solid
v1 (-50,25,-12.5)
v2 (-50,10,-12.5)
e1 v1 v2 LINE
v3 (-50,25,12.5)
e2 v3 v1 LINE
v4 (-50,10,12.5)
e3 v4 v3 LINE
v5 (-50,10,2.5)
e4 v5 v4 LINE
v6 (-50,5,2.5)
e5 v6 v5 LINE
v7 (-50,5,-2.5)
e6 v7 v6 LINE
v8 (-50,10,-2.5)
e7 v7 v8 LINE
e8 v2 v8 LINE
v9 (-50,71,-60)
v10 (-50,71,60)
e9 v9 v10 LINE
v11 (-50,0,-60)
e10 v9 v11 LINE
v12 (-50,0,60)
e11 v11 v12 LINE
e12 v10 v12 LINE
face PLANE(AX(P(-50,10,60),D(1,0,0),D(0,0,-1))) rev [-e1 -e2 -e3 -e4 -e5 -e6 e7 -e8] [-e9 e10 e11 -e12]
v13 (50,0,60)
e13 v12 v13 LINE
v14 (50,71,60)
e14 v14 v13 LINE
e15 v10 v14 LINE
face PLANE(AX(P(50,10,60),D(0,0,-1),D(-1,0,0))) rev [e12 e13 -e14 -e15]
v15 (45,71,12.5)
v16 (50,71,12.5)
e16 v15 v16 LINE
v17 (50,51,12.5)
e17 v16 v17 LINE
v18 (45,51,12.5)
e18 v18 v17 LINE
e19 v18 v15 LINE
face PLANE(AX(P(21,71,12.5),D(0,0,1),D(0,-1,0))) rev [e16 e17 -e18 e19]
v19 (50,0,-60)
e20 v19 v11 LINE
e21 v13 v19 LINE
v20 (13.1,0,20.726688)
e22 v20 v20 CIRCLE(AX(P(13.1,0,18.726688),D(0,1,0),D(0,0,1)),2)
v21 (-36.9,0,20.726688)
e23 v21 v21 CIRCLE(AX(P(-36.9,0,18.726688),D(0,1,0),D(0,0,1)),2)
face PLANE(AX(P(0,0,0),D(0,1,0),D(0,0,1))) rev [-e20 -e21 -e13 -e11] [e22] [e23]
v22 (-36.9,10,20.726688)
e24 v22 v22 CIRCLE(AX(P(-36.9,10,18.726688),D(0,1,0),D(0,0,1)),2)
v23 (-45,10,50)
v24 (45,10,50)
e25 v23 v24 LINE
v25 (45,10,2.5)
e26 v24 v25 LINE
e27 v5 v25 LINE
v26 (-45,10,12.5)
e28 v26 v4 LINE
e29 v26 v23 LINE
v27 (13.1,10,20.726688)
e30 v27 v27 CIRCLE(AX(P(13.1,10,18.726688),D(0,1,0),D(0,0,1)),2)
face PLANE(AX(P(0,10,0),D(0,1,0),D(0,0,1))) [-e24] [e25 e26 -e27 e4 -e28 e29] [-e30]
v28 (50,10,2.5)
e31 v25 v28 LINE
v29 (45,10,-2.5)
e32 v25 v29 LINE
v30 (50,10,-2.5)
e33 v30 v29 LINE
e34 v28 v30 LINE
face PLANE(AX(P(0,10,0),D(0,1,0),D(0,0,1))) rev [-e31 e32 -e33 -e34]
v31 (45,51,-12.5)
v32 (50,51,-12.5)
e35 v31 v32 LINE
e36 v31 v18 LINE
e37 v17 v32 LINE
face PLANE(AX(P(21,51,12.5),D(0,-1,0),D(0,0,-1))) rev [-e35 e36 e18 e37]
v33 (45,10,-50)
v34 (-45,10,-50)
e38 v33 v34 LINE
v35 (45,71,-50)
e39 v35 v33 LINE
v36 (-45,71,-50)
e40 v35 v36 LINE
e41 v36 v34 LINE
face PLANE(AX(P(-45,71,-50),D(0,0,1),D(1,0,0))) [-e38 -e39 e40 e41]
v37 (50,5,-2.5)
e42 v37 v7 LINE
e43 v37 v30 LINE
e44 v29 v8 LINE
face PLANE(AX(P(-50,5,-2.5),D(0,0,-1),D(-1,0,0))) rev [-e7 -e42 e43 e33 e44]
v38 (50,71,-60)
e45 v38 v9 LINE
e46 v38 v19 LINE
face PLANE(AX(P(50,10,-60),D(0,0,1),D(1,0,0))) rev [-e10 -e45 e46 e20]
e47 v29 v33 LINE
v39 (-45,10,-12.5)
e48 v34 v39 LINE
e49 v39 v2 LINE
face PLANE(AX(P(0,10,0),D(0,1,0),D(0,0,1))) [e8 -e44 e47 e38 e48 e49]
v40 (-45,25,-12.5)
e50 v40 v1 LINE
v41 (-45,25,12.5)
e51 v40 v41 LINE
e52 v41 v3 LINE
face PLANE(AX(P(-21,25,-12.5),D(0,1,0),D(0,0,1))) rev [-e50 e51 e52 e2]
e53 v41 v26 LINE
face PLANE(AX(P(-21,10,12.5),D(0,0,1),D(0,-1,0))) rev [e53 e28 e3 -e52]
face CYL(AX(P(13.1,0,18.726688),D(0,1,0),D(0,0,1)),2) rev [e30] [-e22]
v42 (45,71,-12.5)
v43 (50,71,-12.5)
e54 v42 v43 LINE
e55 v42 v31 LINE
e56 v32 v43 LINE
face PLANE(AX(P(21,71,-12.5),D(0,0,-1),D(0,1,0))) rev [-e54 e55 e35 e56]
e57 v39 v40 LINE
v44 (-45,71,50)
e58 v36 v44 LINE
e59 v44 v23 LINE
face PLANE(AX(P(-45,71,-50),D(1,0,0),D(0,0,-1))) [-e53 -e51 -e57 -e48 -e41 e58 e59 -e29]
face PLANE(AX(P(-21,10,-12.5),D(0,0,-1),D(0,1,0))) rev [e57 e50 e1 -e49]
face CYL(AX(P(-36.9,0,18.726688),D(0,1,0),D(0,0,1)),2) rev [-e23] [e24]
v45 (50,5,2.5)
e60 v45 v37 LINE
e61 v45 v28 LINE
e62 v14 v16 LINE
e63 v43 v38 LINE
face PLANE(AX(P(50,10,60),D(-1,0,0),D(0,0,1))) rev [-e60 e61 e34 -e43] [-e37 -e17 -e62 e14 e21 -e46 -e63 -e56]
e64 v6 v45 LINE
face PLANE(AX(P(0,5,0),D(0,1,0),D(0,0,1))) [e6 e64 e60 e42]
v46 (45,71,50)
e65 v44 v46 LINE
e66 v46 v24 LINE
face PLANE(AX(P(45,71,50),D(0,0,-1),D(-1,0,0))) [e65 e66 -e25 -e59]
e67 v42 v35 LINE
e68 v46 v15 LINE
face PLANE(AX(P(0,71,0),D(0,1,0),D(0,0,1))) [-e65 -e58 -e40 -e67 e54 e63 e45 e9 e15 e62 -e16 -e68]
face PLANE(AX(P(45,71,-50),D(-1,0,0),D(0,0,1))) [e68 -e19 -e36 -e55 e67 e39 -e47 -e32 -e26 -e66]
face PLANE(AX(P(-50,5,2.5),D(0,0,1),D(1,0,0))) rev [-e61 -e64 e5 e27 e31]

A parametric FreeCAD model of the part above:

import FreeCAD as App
import Part
import Sketcher
from FreeCAD import Vector

doc = App.newDocument("Part")
body = doc.addObject("PartDesign::Body", "Body")

# Sketch on XZ plane
sketch1 = doc.addObject("Sketcher::SketchObject", "Sketch")
body.addObject(sketch1)
sketch1.AttachmentSupport = (doc.XZ_Plane, [""])
sketch1.MapMode = "FlatFace"
sketch1.addGeometry([
    Part.LineSegment(Vector(-50, -60, 0), Vector(-50, 60, 0)),
    Part.LineSegment(Vector(-50, 60, 0), Vector(50, 60, 0)),
    Part.LineSegment(Vector(50, 60, 0), Vector(50, -60, 0)),
    Part.LineSegment(Vector(50, -60, 0), Vector(-50, -60, 0)),
], False)
sketch1.addConstraint([
    Sketcher.Constraint("Coincident", 0, 2, 1, 1),
    Sketcher.Constraint("Coincident", 1, 2, 2, 1),
    Sketcher.Constraint("Coincident", 2, 2, 3, 1),
    Sketcher.Constraint("Coincident", 3, 2, 0, 1),
    Sketcher.Constraint("Vertical", 0),
    Sketcher.Constraint("Horizontal", 1),
    Sketcher.Constraint("Vertical", 2),
    Sketcher.Constraint("Horizontal", 3),
    Sketcher.Constraint("Symmetric", 0, 2, 2, 2, -1, 1),
    Sketcher.Constraint("DistanceX", 1, 1, 1, 2, 100.0),
    Sketcher.Constraint("DistanceY", 0, 1, 0, 2, 120.0),
])
pad1 = doc.addObject("PartDesign::Pad", "Pad")
body.addObject(pad1)
pad1.Profile = sketch1
pad1.Length = 10
pad1.Reversed = True

# Sketch on XZ plane
sketch2 = doc.addObject("Sketcher::SketchObject", "Sketch001")
body.addObject(sketch2)
sketch2.AttachmentSupport = (doc.XZ_Plane, [""])
sketch2.MapMode = "FlatFace"
sketch2.AttachmentOffset = App.Placement(Vector(0, 0, -10), App.Rotation())
sketch2.addGeometry([
    Part.LineSegment(Vector(-50, -2, 0), Vector(-50, 2, 0)),
    Part.LineSegment(Vector(-50, 2, 0), Vector(50, 2, 0)),
    Part.LineSegment(Vector(50, 2, 0), Vector(50, -2, 0)),
    Part.LineSegment(Vector(50, -2, 0), Vector(-50, -2, 0)),
], False)
sketch2.addConstraint([
    Sketcher.Constraint("Coincident", 0, 2, 1, 1),
    Sketcher.Constraint("Coincident", 1, 2, 2, 1),
    Sketcher.Constraint("Coincident", 2, 2, 3, 1),
    Sketcher.Constraint("Coincident", 3, 2, 0, 1),
    Sketcher.Constraint("Vertical", 0),
    Sketcher.Constraint("Horizontal", 1),
    Sketcher.Constraint("Vertical", 2),
    Sketcher.Constraint("Horizontal", 3),
    Sketcher.Constraint("Symmetric", 0, 2, 2, 2, -1, 1),
    Sketcher.Constraint("DistanceX", 1, 1, 1, 2, 100.0),
    Sketcher.Constraint("DistanceY", 0, 1, 0, 2, 5.0),
])
pocket1 = doc.addObject("PartDesign::Pocket", "Pocket")
body.addObject(pocket1)
pocket1.Profile = sketch2
pocket1.Length = 5
pocket1.Reversed = True

# Sketch on XZ plane
sketch3 = doc.addObject("Sketcher::SketchObject", "Sketch002")
body.addObject(sketch3)
sketch3.AttachmentSupport = (doc.XZ_Plane, [""])
sketch3.MapMode = "FlatFace"
sketch3.AttachmentOffset = App.Placement(Vector(0, 0, -10), App.Rotation())
sketch3.addGeometry([
    Part.Circle(Vector(13.1, 18.7, 0), Vector(0, 0, 1), 2),
    Part.Circle(Vector(-36.9, 18.7, 0), Vector(0, 0, 1), 2),
], False)
sketch3.addConstraint([
    Sketcher.Constraint("Equal", 0, 1),
    Sketcher.Constraint("Horizontal", 0, 3, 1, 3),
    Sketcher.Constraint("Diameter", 0, 4.0),
    Sketcher.Constraint("DistanceX", 1, 3, 0, 3, 50.0),
    Sketcher.Constraint("DistanceX", -1, 1, 0, 3, 13.1),
    Sketcher.Constraint("DistanceY", -1, 1, 0, 3, 18.726688),
])
pocket2 = doc.addObject("PartDesign::Pocket", "Pocket001")
body.addObject(pocket2)
pocket2.Profile = sketch3
pocket2.Length = 10
pocket2.Reversed = True

# Sketch on XZ plane
sketch4 = doc.addObject("Sketcher::SketchObject", "Sketch003")
body.addObject(sketch4)
sketch4.AttachmentSupport = (doc.XZ_Plane, [""])
sketch4.MapMode = "FlatFace"
sketch4.AttachmentOffset = App.Placement(Vector(0, 0, -10), App.Rotation())
sketch4.addGeometry([
    Part.LineSegment(Vector(-50, -60, 0), Vector(-50, 60, 0)),  # 0
    Part.LineSegment(Vector(-50, 60, 0), Vector(50, 60, 0)),  # 1
    Part.LineSegment(Vector(50, 60, 0), Vector(50, -60, 0)),  # 2
    Part.LineSegment(Vector(50, -60, 0), Vector(-50, -60, 0)),  # 3
    Part.LineSegment(Vector(45, 50, 0), Vector(-45, 50, 0)),  # 4
    Part.LineSegment(Vector(-45, 50, 0), Vector(-45, -50, 0)),  # 5
    Part.LineSegment(Vector(-45, -50, 0), Vector(45, -50, 0)),  # 6
    Part.LineSegment(Vector(45, -50, 0), Vector(45, 50, 0)),  # 7
], False)
sketch4.addConstraint([
    Sketcher.Constraint("Coincident", 0, 2, 1, 1),
    Sketcher.Constraint("Coincident", 1, 2, 2, 1),
    Sketcher.Constraint("Coincident", 2, 2, 3, 1),
    Sketcher.Constraint("Coincident", 3, 2, 0, 1),
    Sketcher.Constraint("Coincident", 4, 2, 5, 1),
    Sketcher.Constraint("Coincident", 5, 2, 6, 1),
    Sketcher.Constraint("Coincident", 6, 2, 7, 1),
    Sketcher.Constraint("Coincident", 7, 2, 4, 1),
    Sketcher.Constraint("Vertical", 0),
    Sketcher.Constraint("Horizontal", 1),
    Sketcher.Constraint("Vertical", 2),
    Sketcher.Constraint("Horizontal", 3),
    Sketcher.Constraint("Horizontal", 4),
    Sketcher.Constraint("Vertical", 5),
    Sketcher.Constraint("Horizontal", 6),
    Sketcher.Constraint("Vertical", 7),
    Sketcher.Constraint("Symmetric", 0, 2, 2, 2, -1, 1),
    Sketcher.Constraint("Symmetric", 4, 2, 6, 2, -1, 1),
    Sketcher.Constraint("Equal", 3, 5),
    Sketcher.Constraint("DistanceX", 1, 1, 1, 2, 100.0),
    Sketcher.Constraint("DistanceX", 4, 2, 4, 1, 90.0),
    Sketcher.Constraint("DistanceY", 0, 1, 0, 2, 120.0),
])
pad2 = doc.addObject("PartDesign::Pad", "Pad001")
body.addObject(pad2)
pad2.Profile = sketch4
pad2.Length = 61
pad2.Reversed = True

# Sketch on YZ plane
sketch5 = doc.addObject("Sketcher::SketchObject", "Sketch004")
body.addObject(sketch5)
sketch5.AttachmentSupport = (doc.YZ_Plane, [""])
sketch5.MapMode = "FlatFace"
sketch5.AttachmentOffset = App.Placement(Vector(0, 0, -50), App.Rotation())
sketch5.addGeometry([
    Part.LineSegment(Vector(25, -12, 0), Vector(10, -12, 0)),
    Part.LineSegment(Vector(10, -12, 0), Vector(10, 12, 0)),
    Part.LineSegment(Vector(10, 12, 0), Vector(25, 12, 0)),
    Part.LineSegment(Vector(25, 12, 0), Vector(25, -12, 0)),
], False)
sketch5.addConstraint([
    Sketcher.Constraint("Coincident", 0, 2, 1, 1),
    Sketcher.Constraint("Coincident", 1, 2, 2, 1),
    Sketcher.Constraint("Coincident", 2, 2, 3, 1),
    Sketcher.Constraint("Coincident", 3, 2, 0, 1),
    Sketcher.Constraint("Horizontal", 0),
    Sketcher.Constraint("Vertical", 1),
    Sketcher.Constraint("Horizontal", 2),
    Sketcher.Constraint("Vertical", 3),
    Sketcher.Constraint("DistanceX", 0, 2, 0, 1, 15.0),
    Sketcher.Constraint("DistanceY", 1, 1, 1, 2, 25.0),
    Sketcher.Constraint("DistanceX", -1, 1, 0, 2, 10.0),
    Sketcher.Constraint("DistanceY", 0, 2, -1, 1, 12.5),
])
pocket3 = doc.addObject("PartDesign::Pocket", "Pocket002")
body.addObject(pocket3)
pocket3.Profile = sketch5
pocket3.Length = 29
pocket3.Reversed = True

# Sketch on YZ plane
sketch6 = doc.addObject("Sketcher::SketchObject", "Sketch005")
body.addObject(sketch6)
sketch6.AttachmentSupport = (doc.YZ_Plane, [""])
sketch6.MapMode = "FlatFace"
sketch6.AttachmentOffset = App.Placement(Vector(0, 0, 50), App.Rotation())
sketch6.addGeometry([
    Part.LineSegment(Vector(71, 12, 0), Vector(51, 12, 0)),
    Part.LineSegment(Vector(51, 12, 0), Vector(51, -12, 0)),
    Part.LineSegment(Vector(51, -12, 0), Vector(71, -12, 0)),
    Part.LineSegment(Vector(71, -12, 0), Vector(71, 12, 0)),
], False)
sketch6.addConstraint([
    Sketcher.Constraint("Coincident", 0, 2, 1, 1),
    Sketcher.Constraint("Coincident", 1, 2, 2, 1),
    Sketcher.Constraint("Coincident", 2, 2, 3, 1),
    Sketcher.Constraint("Coincident", 3, 2, 0, 1),
    Sketcher.Constraint("Horizontal", 0),
    Sketcher.Constraint("Vertical", 1),
    Sketcher.Constraint("Horizontal", 2),
    Sketcher.Constraint("Vertical", 3),
    Sketcher.Constraint("DistanceX", 0, 2, 0, 1, 20.0),
    Sketcher.Constraint("DistanceY", 1, 2, 1, 1, 25.0),
    Sketcher.Constraint("DistanceX", -1, 1, 0, 2, 51.0),
    Sketcher.Constraint("DistanceY", -1, 1, 0, 2, 12.5),
])
pocket4 = doc.addObject("PartDesign::Pocket", "Pocket003")
body.addObject(pocket4)
pocket4.Profile = sketch6
pocket4.Length = 29

doc.recompute()
